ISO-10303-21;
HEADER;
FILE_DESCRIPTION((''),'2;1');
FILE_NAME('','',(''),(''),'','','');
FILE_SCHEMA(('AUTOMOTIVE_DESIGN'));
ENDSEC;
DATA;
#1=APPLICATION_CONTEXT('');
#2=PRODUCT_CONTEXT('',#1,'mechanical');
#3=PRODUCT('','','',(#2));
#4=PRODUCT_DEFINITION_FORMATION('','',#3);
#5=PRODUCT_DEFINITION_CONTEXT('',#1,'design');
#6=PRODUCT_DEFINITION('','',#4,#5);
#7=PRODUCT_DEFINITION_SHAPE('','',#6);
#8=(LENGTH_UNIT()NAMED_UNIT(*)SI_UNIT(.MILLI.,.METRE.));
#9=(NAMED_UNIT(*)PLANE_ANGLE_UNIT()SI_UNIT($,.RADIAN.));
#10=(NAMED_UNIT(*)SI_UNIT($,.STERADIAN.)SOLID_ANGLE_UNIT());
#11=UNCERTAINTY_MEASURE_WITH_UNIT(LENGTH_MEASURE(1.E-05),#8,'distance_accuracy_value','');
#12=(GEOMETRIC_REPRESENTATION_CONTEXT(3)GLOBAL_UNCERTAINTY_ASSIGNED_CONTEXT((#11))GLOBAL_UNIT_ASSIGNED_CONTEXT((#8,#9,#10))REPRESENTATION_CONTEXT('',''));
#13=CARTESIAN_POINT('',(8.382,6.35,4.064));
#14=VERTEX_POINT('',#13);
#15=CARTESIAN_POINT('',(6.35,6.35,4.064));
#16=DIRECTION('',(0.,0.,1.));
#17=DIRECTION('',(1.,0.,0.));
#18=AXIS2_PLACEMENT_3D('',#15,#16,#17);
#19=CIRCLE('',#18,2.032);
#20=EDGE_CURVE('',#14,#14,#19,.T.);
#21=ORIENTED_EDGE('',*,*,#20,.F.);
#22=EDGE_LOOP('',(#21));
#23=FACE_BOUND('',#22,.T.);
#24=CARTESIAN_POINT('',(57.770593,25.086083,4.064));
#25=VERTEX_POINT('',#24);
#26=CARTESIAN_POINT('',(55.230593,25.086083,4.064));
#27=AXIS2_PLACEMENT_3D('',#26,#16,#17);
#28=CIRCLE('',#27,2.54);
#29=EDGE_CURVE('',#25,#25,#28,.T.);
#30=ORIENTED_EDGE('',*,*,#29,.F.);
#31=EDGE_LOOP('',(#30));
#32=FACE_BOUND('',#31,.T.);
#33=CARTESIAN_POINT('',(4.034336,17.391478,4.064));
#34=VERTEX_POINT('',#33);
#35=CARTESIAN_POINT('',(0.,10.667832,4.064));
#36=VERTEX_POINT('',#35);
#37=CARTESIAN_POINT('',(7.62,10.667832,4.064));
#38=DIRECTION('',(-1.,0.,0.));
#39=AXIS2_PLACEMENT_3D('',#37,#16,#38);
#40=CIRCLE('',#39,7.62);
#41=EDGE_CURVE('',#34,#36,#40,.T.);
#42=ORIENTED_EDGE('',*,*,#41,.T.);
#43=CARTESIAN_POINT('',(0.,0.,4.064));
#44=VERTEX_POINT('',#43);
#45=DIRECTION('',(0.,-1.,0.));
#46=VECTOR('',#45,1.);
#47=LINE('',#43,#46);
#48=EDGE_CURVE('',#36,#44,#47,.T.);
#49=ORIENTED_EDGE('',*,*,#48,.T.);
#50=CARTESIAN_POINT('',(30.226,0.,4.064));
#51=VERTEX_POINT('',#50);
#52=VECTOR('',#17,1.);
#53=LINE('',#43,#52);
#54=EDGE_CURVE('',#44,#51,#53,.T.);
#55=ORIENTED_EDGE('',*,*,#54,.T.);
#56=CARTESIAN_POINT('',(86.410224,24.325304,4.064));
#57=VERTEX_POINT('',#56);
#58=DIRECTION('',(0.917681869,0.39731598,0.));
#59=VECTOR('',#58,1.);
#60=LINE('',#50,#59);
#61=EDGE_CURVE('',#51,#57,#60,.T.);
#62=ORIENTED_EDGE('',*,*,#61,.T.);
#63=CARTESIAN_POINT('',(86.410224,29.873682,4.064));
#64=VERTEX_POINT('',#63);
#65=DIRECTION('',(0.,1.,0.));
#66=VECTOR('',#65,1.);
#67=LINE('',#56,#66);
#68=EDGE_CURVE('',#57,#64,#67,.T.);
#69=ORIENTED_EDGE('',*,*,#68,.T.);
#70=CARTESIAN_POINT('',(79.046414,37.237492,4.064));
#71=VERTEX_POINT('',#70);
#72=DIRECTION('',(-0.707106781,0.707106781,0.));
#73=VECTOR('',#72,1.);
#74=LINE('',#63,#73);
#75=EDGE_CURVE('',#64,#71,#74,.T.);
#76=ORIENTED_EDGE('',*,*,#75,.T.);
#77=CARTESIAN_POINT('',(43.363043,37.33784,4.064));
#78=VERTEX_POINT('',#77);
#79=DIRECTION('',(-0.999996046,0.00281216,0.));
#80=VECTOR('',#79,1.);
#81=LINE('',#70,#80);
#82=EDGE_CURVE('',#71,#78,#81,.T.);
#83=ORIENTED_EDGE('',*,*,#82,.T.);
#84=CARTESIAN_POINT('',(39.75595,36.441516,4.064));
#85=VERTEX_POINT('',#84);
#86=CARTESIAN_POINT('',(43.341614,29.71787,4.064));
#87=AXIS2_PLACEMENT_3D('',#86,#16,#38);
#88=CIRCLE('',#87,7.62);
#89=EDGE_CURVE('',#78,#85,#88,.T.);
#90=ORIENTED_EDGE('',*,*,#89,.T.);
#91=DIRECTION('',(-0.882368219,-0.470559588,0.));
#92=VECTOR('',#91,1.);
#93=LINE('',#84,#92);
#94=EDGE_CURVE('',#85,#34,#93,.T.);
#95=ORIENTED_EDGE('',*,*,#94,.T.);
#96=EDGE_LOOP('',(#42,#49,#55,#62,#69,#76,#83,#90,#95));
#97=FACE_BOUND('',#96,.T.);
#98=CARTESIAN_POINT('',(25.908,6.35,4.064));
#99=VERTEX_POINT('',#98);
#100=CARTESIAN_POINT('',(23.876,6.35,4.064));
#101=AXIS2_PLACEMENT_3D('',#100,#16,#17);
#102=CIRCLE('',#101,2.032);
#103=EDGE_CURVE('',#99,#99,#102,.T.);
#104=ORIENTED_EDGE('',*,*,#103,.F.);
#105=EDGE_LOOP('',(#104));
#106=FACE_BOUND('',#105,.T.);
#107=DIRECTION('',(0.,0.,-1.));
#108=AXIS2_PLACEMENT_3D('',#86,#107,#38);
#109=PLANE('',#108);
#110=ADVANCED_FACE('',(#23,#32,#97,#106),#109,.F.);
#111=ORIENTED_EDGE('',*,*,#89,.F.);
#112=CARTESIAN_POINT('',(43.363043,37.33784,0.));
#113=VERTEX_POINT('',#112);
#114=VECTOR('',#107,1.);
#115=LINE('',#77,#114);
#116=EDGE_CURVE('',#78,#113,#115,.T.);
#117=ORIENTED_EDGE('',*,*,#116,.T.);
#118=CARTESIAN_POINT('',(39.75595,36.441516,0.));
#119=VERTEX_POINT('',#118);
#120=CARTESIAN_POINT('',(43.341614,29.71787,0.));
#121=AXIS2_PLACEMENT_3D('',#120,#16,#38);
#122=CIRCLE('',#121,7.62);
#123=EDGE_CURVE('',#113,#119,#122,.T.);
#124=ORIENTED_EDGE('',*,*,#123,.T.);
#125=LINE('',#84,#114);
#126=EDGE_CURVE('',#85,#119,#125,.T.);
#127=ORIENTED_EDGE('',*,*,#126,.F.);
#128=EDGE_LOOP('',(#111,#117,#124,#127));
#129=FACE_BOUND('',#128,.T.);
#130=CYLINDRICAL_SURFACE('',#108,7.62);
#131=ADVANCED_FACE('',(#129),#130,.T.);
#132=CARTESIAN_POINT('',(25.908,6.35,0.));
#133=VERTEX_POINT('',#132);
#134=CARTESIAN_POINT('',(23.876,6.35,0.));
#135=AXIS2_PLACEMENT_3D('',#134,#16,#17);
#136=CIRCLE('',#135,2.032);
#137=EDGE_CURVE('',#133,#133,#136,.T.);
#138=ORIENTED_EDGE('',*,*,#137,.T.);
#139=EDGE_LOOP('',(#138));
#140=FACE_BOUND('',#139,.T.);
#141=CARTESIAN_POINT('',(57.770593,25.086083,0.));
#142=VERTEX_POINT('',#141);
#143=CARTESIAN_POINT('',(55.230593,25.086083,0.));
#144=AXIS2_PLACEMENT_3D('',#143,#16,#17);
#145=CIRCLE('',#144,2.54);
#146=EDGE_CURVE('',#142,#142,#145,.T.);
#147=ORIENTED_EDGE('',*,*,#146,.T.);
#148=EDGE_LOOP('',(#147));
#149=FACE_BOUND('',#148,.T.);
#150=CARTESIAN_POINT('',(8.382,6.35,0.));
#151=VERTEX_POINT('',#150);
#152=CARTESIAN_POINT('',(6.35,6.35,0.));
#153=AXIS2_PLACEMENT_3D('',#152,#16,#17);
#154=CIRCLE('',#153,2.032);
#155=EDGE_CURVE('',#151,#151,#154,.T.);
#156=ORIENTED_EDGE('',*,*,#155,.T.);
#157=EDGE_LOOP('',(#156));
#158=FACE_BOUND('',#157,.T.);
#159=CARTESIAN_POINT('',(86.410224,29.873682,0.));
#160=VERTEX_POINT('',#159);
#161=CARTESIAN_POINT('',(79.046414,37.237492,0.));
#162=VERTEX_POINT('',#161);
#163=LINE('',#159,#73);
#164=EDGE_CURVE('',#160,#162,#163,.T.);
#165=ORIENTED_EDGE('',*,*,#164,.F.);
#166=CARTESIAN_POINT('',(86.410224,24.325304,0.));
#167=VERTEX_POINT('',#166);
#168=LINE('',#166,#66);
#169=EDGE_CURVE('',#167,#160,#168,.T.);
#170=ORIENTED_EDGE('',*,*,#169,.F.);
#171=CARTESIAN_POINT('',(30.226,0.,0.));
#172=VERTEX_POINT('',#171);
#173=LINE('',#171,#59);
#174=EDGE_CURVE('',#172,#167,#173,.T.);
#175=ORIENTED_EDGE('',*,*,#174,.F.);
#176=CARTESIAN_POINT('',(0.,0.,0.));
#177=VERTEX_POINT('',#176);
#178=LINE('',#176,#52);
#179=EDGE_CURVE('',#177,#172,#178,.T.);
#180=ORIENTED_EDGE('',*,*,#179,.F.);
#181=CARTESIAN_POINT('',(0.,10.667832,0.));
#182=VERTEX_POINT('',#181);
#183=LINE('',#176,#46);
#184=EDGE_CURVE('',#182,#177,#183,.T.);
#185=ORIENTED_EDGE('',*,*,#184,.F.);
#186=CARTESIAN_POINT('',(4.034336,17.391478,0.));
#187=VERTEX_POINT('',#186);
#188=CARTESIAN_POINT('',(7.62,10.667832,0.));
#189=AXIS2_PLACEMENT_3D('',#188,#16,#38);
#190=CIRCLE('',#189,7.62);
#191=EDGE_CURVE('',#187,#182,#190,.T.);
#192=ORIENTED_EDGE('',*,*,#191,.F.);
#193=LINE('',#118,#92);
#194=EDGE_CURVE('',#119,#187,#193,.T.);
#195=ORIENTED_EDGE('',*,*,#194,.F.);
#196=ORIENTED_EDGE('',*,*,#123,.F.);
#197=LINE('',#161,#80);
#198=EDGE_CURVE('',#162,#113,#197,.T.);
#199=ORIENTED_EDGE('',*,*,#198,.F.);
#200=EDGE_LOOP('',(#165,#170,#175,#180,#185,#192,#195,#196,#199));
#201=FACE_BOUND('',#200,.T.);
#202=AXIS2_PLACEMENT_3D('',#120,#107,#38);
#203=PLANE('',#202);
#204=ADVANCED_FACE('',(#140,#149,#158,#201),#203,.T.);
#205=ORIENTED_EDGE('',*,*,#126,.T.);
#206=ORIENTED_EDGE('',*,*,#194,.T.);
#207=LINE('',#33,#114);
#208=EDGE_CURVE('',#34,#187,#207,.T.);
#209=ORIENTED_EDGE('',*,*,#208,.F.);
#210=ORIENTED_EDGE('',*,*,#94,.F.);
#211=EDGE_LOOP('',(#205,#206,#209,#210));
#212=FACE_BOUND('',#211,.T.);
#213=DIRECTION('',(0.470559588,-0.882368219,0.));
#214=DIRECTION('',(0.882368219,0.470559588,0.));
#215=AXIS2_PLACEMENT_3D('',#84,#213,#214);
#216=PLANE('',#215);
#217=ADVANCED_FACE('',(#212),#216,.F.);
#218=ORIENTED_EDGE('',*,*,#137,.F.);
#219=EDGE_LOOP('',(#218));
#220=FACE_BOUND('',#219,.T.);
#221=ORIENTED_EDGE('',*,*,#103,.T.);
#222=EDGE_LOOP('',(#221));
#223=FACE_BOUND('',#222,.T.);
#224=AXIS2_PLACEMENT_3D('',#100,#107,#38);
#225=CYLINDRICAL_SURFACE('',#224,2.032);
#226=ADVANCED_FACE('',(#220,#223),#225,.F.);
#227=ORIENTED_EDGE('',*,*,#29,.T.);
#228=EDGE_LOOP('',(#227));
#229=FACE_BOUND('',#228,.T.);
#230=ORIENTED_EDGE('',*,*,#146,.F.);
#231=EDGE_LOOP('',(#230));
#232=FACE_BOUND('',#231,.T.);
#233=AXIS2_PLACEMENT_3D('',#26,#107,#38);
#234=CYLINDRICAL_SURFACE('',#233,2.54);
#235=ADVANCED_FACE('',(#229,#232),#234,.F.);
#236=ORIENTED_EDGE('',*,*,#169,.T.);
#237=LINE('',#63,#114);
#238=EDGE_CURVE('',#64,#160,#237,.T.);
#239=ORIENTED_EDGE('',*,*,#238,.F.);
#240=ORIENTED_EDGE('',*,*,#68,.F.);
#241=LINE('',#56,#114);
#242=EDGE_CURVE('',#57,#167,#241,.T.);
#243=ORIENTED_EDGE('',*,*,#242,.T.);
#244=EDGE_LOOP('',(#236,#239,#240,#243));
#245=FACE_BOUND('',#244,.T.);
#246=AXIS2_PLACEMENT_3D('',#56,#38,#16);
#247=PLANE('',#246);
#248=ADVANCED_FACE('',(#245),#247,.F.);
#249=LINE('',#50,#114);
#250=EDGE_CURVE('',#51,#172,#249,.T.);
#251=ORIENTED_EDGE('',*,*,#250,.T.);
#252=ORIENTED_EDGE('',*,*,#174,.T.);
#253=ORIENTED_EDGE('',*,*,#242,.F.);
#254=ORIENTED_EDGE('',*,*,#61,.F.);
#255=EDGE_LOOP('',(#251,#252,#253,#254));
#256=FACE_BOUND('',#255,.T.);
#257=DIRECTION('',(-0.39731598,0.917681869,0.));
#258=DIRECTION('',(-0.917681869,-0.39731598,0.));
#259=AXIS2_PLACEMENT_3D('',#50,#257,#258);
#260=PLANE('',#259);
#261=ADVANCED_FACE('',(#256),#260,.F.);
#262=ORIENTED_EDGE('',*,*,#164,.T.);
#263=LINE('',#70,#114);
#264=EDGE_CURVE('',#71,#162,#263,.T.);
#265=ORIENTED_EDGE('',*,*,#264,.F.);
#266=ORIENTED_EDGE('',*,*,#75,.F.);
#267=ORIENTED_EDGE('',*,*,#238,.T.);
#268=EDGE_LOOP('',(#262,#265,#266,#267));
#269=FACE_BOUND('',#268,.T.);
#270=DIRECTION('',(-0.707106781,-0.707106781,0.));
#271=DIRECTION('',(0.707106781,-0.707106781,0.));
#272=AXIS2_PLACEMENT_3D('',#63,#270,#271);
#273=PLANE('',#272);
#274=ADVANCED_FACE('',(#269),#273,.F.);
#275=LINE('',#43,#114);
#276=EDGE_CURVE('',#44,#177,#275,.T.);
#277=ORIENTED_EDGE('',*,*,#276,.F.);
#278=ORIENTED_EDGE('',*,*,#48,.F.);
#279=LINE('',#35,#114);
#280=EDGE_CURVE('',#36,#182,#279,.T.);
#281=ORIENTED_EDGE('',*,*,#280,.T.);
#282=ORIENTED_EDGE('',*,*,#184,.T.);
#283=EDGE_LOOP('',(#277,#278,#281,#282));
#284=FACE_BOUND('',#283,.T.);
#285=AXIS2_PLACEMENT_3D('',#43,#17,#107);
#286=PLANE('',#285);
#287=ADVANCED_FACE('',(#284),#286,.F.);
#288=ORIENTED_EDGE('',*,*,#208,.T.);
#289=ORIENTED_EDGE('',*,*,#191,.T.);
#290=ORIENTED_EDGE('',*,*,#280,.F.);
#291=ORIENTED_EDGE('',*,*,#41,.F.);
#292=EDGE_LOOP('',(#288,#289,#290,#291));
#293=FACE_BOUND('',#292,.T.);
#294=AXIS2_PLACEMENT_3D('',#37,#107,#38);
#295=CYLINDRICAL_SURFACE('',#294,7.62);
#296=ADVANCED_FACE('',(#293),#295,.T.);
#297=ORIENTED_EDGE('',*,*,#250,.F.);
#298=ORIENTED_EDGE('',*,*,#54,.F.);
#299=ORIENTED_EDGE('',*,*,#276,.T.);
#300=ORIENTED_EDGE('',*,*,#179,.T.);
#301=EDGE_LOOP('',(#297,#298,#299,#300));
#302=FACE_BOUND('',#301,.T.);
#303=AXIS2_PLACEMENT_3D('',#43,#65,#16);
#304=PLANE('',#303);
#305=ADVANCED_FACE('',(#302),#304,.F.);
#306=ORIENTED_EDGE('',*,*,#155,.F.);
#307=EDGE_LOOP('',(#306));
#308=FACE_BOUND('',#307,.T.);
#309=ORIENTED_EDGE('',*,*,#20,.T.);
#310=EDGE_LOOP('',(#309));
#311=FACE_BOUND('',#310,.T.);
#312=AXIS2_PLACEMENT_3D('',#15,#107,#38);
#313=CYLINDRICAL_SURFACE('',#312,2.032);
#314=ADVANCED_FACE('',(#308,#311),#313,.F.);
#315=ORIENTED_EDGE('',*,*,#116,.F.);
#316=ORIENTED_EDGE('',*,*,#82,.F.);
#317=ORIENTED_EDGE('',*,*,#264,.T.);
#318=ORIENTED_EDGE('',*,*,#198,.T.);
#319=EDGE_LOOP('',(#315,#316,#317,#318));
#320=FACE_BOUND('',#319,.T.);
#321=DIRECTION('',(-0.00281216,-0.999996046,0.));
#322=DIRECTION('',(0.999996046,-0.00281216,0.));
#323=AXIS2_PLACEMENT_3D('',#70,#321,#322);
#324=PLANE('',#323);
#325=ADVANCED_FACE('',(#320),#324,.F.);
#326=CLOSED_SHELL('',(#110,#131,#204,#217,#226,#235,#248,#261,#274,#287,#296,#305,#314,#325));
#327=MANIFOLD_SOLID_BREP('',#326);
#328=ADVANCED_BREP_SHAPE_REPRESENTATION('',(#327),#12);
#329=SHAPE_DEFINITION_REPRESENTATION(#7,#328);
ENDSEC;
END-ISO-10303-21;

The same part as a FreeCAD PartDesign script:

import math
import FreeCAD as App
import Part
import Sketcher
Q = App.Units.Quantity

doc = App.newDocument("Part")
body = doc.addObject("PartDesign::Body", "Body")

# Sketch on XY plane
sketch1 = body.newObject("Sketcher::SketchObject", "Sketch")
sketch1.AttachmentSupport = (doc.getObject("XY_Plane"), [""])
sketch1.MapMode = "FlatFace"
sketch1.addGeometry(Part.LineSegment(App.Vector(0, 10.7, 0), App.Vector(0, 0, 0)), False)
sketch1.addGeometry(Part.LineSegment(App.Vector(0, 0, 0), App.Vector(30.2, 0, 0)), False)
sketch1.addGeometry(Part.LineSegment(App.Vector(30.2, 0, 0), App.Vector(86.4, 24.3, 0)), False)
sketch1.addGeometry(Part.LineSegment(App.Vector(86.4, 24.3, 0), App.Vector(86.4, 29.9, 0)), False)
sketch1.addGeometry(Part.LineSegment(App.Vector(86.4, 29.9, 0), App.Vector(79, 37.2, 0)), False)
sketch1.addGeometry(Part.LineSegment(App.Vector(79, 37.2, 0), App.Vector(43.4, 37.3, 0)), False)
sketch1.addGeometry(Part.ArcOfCircle(Part.Circle(App.Vector(43.3, 29.7, 0), App.Vector(0, 0, 1), 7.6), math.radians(90), math.radians(118)), False)
sketch1.addGeometry(Part.LineSegment(App.Vector(39.8, 36.4, 0), App.Vector(4, 17.4, 0)), False)
sketch1.addGeometry(Part.ArcOfCircle(Part.Circle(App.Vector(7.6, 10.7, 0), App.Vector(0, 0, 1), 7.6), math.radians(118), math.radians(180)), False)
sketch1.addGeometry(Part.Circle(App.Vector(23.9, 6.3, 0), App.Vector(0, 0, 1), 2), False)
sketch1.addGeometry(Part.Circle(App.Vector(6.3, 6.3, 0), App.Vector(0, 0, 1), 2), False)
sketch1.addGeometry(Part.Circle(App.Vector(55.2, 25.1, 0), App.Vector(0, 0, 1), 2.5), False)
sketch1.addConstraint(Sketcher.Constraint("Coincident", 0, 2, 1, 1))
sketch1.addConstraint(Sketcher.Constraint("Coincident", 1, 2, 2, 1))
sketch1.addConstraint(Sketcher.Constraint("Coincident", 2, 2, 3, 1))
sketch1.addConstraint(Sketcher.Constraint("Coincident", 3, 2, 4, 1))
sketch1.addConstraint(Sketcher.Constraint("Coincident", 4, 2, 5, 1))
sketch1.addConstraint(Sketcher.Constraint("Tangent", 5, 2, 6, 1))
sketch1.addConstraint(Sketcher.Constraint("Tangent", 6, 2, 7, 1))
sketch1.addConstraint(Sketcher.Constraint("Tangent", 7, 2, 8, 1))
sketch1.addConstraint(Sketcher.Constraint("Tangent", 8, 2, 0, 1))
sketch1.addConstraint(Sketcher.Constraint("Vertical", 0))
sketch1.addConstraint(Sketcher.Constraint("Horizontal", 1))
sketch1.addConstraint(Sketcher.Constraint("Vertical", 3))
sketch1.addConstraint(Sketcher.Constraint("Coincident", 0, 2, -1, 1))
sketch1.addConstraint(Sketcher.Constraint("Equal", 6, 8))
sketch1.addConstraint(Sketcher.Constraint("Equal", 9, 10))
sketch1.addConstraint(Sketcher.Constraint("Horizontal", 9, 3, 10, 3))
sketch1.addConstraint(Sketcher.Constraint("Diameter", 11, Q("0.2 in")))
sketch1.addConstraint(Sketcher.Constraint("Radius", 6, Q("0.3 in")))
sketch1.addConstraint(Sketcher.Constraint("Diameter", 9, Q("0.16 in")))
sketch1.addConstraint(Sketcher.Constraint("Angle", 4, Q("135 deg")))
sketch1.addConstraint(Sketcher.Constraint("DistanceX", 1, 1, 1, 2, Q("1.19 in")))
sketch1.addConstraint(Sketcher.Constraint("Distance", 4, Q("0.41 in")))
sketch1.addConstraint(Sketcher.Constraint("DistanceX", -1, 1, 9, 3, Q("0.94 in")))
sketch1.addConstraint(Sketcher.Constraint("DistanceY", -1, 1, 9, 3, Q("0.25 in")))
sketch1.addConstraint(Sketcher.Constraint("DistanceX", -1, 1, 10, 3, Q("0.25 in")))
sketch1.addConstraint(Sketcher.Constraint("DistanceY", 0, 2, 0, 1, 10.667832))
sketch1.addConstraint(Sketcher.Constraint("DistanceY", 3, 1, 3, 2, 5.548378))
sketch1.addConstraint(Sketcher.Constraint("DistanceY", 11, 3, 3, 2, 4.787599))
sketch1.addConstraint(Sketcher.Constraint("DistanceX", 6, 3, 4, 2, 35.7048))
sketch1.addConstraint(Sketcher.Constraint("DistanceY", -1, 1, 6, 3, 29.71787))
sketch1.addConstraint(Sketcher.Constraint("DistanceY", -1, 1, 3, 2, 29.873682))
sketch1.addConstraint(Sketcher.Constraint("DistanceX", -1, 1, 6, 2, 39.75595))
sketch1.addConstraint(Sketcher.Constraint("DistanceX", 6, 3, 11, 3, 11.888979))
pad1 = body.newObject("PartDesign::Pad", "Pad")
pad1.Profile = sketch1
pad1.Length = Q("0.16 in")

doc.recompute()
